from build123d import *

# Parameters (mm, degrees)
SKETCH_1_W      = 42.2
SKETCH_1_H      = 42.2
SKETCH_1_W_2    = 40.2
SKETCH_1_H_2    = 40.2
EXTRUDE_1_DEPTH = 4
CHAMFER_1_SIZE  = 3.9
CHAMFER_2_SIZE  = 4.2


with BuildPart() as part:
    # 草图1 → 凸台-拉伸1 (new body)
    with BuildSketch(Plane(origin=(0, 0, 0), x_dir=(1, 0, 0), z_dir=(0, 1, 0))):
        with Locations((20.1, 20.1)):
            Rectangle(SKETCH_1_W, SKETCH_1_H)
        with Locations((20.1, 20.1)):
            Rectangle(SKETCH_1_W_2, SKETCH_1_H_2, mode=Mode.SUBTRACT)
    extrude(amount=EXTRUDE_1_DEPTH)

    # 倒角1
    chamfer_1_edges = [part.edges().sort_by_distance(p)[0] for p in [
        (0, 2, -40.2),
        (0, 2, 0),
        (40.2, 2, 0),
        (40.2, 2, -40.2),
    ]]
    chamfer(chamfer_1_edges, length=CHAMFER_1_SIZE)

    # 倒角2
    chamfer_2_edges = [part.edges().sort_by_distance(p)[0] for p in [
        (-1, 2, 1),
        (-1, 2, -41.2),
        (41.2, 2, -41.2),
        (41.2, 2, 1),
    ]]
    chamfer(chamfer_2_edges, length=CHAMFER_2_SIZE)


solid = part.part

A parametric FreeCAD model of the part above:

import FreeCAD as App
import Part
import Sketcher
Q = App.Units.Quantity


def edges_at(feature, points):
    """Names of the edges that pass closest to the given points."""
    edges = feature.Shape.Edges
    near = lambda p: min(range(len(edges)), key=lambda i: edges[i].distToShape(Part.Vertex(*p))[0])
    return sorted({f"Edge{near(p) + 1}" for p in points})

doc = App.newDocument("Part")
body = doc.addObject("PartDesign::Body", "Body")

# Sketch on XZ plane
sketch1 = body.newObject("Sketcher::SketchObject", "Sketch")
sketch1.AttachmentSupport = (doc.getObject("XZ_Plane"), [""])
sketch1.MapMode = "FlatFace"
sketch1.addGeometry([
    Part.LineSegment(App.Vector(-1, -41.2, 0), App.Vector(-1, 1, 0)),  # 0
    Part.LineSegment(App.Vector(-1, 1, 0), App.Vector(41.2, 1, 0)),  # 1
    Part.LineSegment(App.Vector(41.2, 1, 0), App.Vector(41.2, -41.2, 0)),  # 2
    Part.LineSegment(App.Vector(41.2, -41.2, 0), App.Vector(-1, -41.2, 0)),  # 3
    Part.LineSegment(App.Vector(40.2, 0, 0), App.Vector(0, 0, 0)),  # 4
    Part.LineSegment(App.Vector(0, 0, 0), App.Vector(0, -40.2, 0)),  # 5
    Part.LineSegment(App.Vector(0, -40.2, 0), App.Vector(40.2, -40.2, 0)),  # 6
    Part.LineSegment(App.Vector(40.2, -40.2, 0), App.Vector(40.2, 0, 0)),  # 7
], False)
sketch1.addConstraint([
    Sketcher.Constraint("Coincident", 0, 2, 1, 1),
    Sketcher.Constraint("Coincident", 1, 2, 2, 1),
    Sketcher.Constraint("Coincident", 2, 2, 3, 1),
    Sketcher.Constraint("Coincident", 3, 2, 0, 1),
    Sketcher.Constraint("Coincident", 4, 2, 5, 1),
    Sketcher.Constraint("Coincident", 5, 2, 6, 1),
    Sketcher.Constraint("Coincident", 6, 2, 7, 1),
    Sketcher.Constraint("Coincident", 7, 2, 4, 1),
    Sketcher.Constraint("Vertical", 0),
    Sketcher.Constraint("Horizontal", 1),
    Sketcher.Constraint("Vertical", 2),
    Sketcher.Constraint("Horizontal", 3),
    Sketcher.Constraint("Horizontal", 4),
    Sketcher.Constraint("Vertical", 5),
    Sketcher.Constraint("Horizontal", 6),
    Sketcher.Constraint("Vertical", 7),
    Sketcher.Constraint("Coincident", 4, 2, -1, 1),
    Sketcher.Constraint("Equal", 3, 0),
    Sketcher.Constraint("Equal", 6, 5),
    Sketcher.Constraint("DistanceX", 1, 1, 1, 2, Q("42.2 mm")),
    Sketcher.Constraint("DistanceX", 4, 2, 4, 1, Q("40.2 mm")),
    Sketcher.Constraint("DistanceX", 0, 2, -1, 1, Q("1 mm")),
    Sketcher.Constraint("DistanceY", -1, 1, 0, 2, Q("1 mm")),
])
pad1 = body.newObject("PartDesign::Pad", "Pad")
pad1.Profile = sketch1
pad1.Length = 4
pad1.Reversed = True
doc.recompute()

chamfer = body.newObject("PartDesign::Chamfer", "Chamfer")
chamfer.Base = (pad1, edges_at(pad1, [
    (0, 2, -40.2),
    (0, 2, 0),
    (40.2, 2, 0),
    (40.2, 2, -40.2),
]))
chamfer.Size = 3.9
doc.recompute()

chamfer2 = body.newObject("PartDesign::Chamfer", "Chamfer001")
chamfer2.Base = (chamfer, edges_at(chamfer, [
    (-1, 2, 1),
    (-1, 2, -41.2),
    (41.2, 2, -41.2),
    (41.2, 2, 1),
]))
chamfer2.Size = 4.2

doc.recompute()
